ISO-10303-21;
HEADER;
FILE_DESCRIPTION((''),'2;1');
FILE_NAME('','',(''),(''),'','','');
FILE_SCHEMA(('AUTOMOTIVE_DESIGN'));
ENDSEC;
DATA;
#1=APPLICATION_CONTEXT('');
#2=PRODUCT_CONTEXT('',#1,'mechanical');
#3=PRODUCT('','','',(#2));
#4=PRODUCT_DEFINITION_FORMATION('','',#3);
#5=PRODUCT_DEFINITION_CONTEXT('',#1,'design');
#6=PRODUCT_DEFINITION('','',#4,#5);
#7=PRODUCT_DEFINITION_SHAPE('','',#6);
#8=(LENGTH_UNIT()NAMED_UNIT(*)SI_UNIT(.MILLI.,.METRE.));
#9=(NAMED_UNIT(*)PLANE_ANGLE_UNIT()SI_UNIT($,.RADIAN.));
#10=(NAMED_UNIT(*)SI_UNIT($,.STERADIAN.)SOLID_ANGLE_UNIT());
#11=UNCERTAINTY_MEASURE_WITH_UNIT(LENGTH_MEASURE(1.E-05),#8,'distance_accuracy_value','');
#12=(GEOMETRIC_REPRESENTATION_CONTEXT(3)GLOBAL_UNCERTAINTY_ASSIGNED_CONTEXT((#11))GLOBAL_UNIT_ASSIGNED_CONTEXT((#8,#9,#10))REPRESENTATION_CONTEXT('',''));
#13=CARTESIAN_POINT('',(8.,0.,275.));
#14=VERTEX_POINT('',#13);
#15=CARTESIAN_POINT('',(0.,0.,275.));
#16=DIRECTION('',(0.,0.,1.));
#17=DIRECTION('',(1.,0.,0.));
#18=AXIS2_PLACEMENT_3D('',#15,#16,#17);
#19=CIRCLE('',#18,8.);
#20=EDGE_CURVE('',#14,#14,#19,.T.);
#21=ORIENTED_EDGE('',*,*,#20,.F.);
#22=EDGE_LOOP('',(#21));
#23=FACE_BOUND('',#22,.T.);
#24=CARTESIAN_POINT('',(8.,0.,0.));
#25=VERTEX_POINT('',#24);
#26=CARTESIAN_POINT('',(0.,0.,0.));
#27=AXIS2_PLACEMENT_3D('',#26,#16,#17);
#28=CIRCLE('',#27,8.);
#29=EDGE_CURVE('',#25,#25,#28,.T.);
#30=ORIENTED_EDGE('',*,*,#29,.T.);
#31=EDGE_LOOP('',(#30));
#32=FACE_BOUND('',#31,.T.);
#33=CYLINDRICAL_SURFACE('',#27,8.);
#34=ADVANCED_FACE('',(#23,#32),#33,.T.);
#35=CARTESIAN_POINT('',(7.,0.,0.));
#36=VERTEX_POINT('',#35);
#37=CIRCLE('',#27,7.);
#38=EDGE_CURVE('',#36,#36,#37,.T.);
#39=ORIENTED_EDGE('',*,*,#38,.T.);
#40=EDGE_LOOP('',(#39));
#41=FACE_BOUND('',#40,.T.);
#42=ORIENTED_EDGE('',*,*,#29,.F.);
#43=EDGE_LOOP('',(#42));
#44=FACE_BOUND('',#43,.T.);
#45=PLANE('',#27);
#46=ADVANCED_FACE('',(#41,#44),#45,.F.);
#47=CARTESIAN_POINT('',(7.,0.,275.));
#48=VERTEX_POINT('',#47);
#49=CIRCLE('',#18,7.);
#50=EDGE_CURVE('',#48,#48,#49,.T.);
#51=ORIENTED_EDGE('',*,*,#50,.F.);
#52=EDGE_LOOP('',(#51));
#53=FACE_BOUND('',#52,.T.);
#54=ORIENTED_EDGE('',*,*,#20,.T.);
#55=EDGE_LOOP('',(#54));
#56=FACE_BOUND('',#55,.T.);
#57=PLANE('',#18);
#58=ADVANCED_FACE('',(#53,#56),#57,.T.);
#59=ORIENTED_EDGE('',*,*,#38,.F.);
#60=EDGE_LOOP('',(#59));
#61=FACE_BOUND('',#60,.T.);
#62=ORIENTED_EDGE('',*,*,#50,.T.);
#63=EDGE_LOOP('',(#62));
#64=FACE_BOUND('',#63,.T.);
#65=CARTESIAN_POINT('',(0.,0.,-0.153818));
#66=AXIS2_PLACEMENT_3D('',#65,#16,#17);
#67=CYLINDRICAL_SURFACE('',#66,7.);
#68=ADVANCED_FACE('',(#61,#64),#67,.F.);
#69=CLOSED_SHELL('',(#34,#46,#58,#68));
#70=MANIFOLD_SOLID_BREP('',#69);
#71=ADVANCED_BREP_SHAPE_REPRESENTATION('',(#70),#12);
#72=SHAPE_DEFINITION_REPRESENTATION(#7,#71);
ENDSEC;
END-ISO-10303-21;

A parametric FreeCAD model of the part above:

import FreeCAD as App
import Part
import Sketcher
from FreeCAD import Vector

doc = App.newDocument("Part")
params = doc.addObject("Spreadsheet::Sheet", "Params")
for row, (alias, value) in enumerate([
    ("sketch1_diameter", "16 mm"),
    ("sketch2_diameter", "16 mm"),
    ("sketch3_diameter", "14 mm"),
], start=1):
    params.set(f"A{row}", alias)
    params.set(f"B{row}", "=" + value)
    params.setAlias(f"B{row}", alias)

body = doc.addObject("PartDesign::Body", "Body")

# Sketch on XY plane
sketch1 = body.newObject("Sketcher::SketchObject", "Sketch")
sketch1.AttachmentSupport = (doc.getObject("XY_Plane"), [""])
sketch1.MapMode = "FlatFace"
sketch1.addGeometry(Part.Circle(Vector(0, 0, 0), Vector(0, 0, 1), 8), False)
sketch1.addConstraint(Sketcher.Constraint("Coincident", 0, 3, -1, 1))
sketch1.addConstraint(Sketcher.Constraint("Diameter", 0, 16.0))
sketch1.setExpression("Constraints[1]", "Params.sketch1_diameter")

# Sketch on XY plane
sketch2 = body.newObject("Sketcher::SketchObject", "Sketch001")
sketch2.AttachmentSupport = (doc.getObject("XY_Plane"), [""])
sketch2.MapMode = "FlatFace"
sketch2.AttachmentOffset = App.Placement(Vector(0, 0, 275), App.Rotation())
sketch2.addGeometry(Part.Circle(Vector(0, 0, 0), Vector(0, 0, 1), 8), False)
sketch2.addConstraint(Sketcher.Constraint("Coincident", 0, 3, -1, 1))
sketch2.addConstraint(Sketcher.Constraint("Diameter", 0, 16.0))
sketch2.setExpression("Constraints[1]", "Params.sketch2_diameter")

additiveloft = body.newObject("PartDesign::AdditiveLoft", "AdditiveLoft")
additiveloft.Profile = sketch1
additiveloft.Sections = [sketch2]

# Sketch on XY plane
sketch3 = body.newObject("Sketcher::SketchObject", "Sketch002")
sketch3.AttachmentSupport = (doc.getObject("XY_Plane"), [""])
sketch3.MapMode = "FlatFace"
sketch3.addGeometry(Part.Circle(Vector(0, 0, 0), Vector(0, 0, 1), 7), False)
sketch3.addConstraint(Sketcher.Constraint("Coincident", 0, 3, -1, 1))
sketch3.addConstraint(Sketcher.Constraint("Diameter", 0, 14.0))
sketch3.setExpression("Constraints[1]", "Params.sketch3_diameter")
pocket1 = body.newObject("PartDesign::Pocket", "Pocket")
pocket1.Profile = sketch3
pocket1.Type = "ThroughAll"
pocket1.Midplane = True

doc.recompute()
